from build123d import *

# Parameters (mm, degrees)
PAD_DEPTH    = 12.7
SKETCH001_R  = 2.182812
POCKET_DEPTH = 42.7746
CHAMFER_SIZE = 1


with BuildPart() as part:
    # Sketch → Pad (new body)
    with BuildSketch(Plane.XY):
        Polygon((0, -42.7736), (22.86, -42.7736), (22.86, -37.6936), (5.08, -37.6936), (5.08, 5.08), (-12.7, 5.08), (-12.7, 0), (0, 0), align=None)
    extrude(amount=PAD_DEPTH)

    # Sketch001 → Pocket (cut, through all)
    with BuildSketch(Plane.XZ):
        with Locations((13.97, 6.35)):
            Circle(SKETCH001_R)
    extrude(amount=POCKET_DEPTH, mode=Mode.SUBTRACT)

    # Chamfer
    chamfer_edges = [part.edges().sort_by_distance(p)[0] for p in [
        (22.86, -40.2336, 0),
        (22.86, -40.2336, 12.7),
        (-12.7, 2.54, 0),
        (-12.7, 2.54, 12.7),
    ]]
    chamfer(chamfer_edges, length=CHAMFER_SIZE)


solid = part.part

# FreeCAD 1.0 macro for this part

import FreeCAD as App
import Part
import Sketcher

V = App.Vector
Q = App.Units.Quantity


def edges_at(feature, points):
    """Names of the edges that pass closest to the given points."""
    edges = feature.Shape.Edges
    near = lambda p: min(range(len(edges)), key=lambda i: edges[i].distToShape(Part.Vertex(*p))[0])
    return sorted({f"Edge{near(p) + 1}" for p in points})


def add_polygon(sketch, points):
    """Adds a closed chain of lines whose ends are joined by coincident constraints."""
    first, n = sketch.GeometryCount, len(points)
    for a, b in zip(points, points[1:] + points[:1]):
        sketch.addGeometry(Part.LineSegment(App.Vector(*a, 0), App.Vector(*b, 0)), False)
    for i in range(n):
        sketch.addConstraint(Sketcher.Constraint("Coincident", first + i, 2, first + (i + 1) % n, 1))

doc = App.newDocument("Part")
body = doc.addObject("PartDesign::Body", "Body")

sketch1 = doc.addObject("Sketcher::SketchObject", "Sketch")
body.addObject(sketch1)
sketch1.AttachmentSupport = (doc.XY_Plane, [""])
sketch1.MapMode = "FlatFace"
add_polygon(sketch1, [(0, -43), (23, -43), (23, -38), (5, -38), (5, 5), (-13, 5), (-13, 0), (0, 0)])
sketch1.addConstraint([
    Sketcher.Constraint("Horizontal", 0),
    Sketcher.Constraint("Vertical", 1),
    Sketcher.Constraint("Horizontal", 2),
    Sketcher.Constraint("Vertical", 3),
    Sketcher.Constraint("Horizontal", 4),
    Sketcher.Constraint("Vertical", 5),
    Sketcher.Constraint("Horizontal", 6),
    Sketcher.Constraint("Vertical", 7),
    Sketcher.Constraint("Coincident", 6, 2, -1, 1),
    Sketcher.Constraint("Equal", 2, 4),
    Sketcher.Constraint("Equal", 1, 5),
    Sketcher.Constraint("DistanceX", 0, 1, 0, 2, Q("0.9 in")),
    Sketcher.Constraint("DistanceX", 2, 2, 2, 1, Q("0.7 in")),
    Sketcher.Constraint("DistanceY", 1, 1, 1, 2, Q("0.2 in")),
    Sketcher.Constraint("DistanceY", 3, 1, 3, 2, Q("1.684 in")),
])
pad1 = doc.addObject("PartDesign::Pad", "Pad")
body.addObject(pad1)
pad1.Profile = sketch1
pad1.Length = Q("0.5 in")

sketch2 = doc.addObject("Sketcher::SketchObject", "Sketch001")
body.addObject(sketch2)
sketch2.AttachmentSupport = (doc.XZ_Plane, [""])
sketch2.MapMode = "FlatFace"
sketch2.addGeometry(Part.Circle(V(14, 6.3, 0), V(0, 0, 1), 2.2), False)
sketch2.addConstraint([
    Sketcher.Constraint("Diameter", 0, Q("0.171875 in")),
    Sketcher.Constraint("DistanceX", -1, 1, 0, 3, Q("0.55 in")),
    Sketcher.Constraint("DistanceY", -1, 1, 0, 3, Q("0.25 in")),
])
pocket1 = doc.addObject("PartDesign::Pocket", "Pocket")
body.addObject(pocket1)
pocket1.Profile = sketch2
pocket1.Type = "ThroughAll"
pocket1.Reversed = True
doc.recompute()

chamfer = doc.addObject("PartDesign::Chamfer", "Chamfer")
body.addObject(chamfer)
chamfer.Base = (pocket1, edges_at(pocket1, [
    (22.86, -40.234, 0),
    (22.86, -40.234, 12.7),
    (-12.7, 2.54, 0),
    (-12.7, 2.54, 12.7),
]))
chamfer.Size = 1

doc.recompute()
